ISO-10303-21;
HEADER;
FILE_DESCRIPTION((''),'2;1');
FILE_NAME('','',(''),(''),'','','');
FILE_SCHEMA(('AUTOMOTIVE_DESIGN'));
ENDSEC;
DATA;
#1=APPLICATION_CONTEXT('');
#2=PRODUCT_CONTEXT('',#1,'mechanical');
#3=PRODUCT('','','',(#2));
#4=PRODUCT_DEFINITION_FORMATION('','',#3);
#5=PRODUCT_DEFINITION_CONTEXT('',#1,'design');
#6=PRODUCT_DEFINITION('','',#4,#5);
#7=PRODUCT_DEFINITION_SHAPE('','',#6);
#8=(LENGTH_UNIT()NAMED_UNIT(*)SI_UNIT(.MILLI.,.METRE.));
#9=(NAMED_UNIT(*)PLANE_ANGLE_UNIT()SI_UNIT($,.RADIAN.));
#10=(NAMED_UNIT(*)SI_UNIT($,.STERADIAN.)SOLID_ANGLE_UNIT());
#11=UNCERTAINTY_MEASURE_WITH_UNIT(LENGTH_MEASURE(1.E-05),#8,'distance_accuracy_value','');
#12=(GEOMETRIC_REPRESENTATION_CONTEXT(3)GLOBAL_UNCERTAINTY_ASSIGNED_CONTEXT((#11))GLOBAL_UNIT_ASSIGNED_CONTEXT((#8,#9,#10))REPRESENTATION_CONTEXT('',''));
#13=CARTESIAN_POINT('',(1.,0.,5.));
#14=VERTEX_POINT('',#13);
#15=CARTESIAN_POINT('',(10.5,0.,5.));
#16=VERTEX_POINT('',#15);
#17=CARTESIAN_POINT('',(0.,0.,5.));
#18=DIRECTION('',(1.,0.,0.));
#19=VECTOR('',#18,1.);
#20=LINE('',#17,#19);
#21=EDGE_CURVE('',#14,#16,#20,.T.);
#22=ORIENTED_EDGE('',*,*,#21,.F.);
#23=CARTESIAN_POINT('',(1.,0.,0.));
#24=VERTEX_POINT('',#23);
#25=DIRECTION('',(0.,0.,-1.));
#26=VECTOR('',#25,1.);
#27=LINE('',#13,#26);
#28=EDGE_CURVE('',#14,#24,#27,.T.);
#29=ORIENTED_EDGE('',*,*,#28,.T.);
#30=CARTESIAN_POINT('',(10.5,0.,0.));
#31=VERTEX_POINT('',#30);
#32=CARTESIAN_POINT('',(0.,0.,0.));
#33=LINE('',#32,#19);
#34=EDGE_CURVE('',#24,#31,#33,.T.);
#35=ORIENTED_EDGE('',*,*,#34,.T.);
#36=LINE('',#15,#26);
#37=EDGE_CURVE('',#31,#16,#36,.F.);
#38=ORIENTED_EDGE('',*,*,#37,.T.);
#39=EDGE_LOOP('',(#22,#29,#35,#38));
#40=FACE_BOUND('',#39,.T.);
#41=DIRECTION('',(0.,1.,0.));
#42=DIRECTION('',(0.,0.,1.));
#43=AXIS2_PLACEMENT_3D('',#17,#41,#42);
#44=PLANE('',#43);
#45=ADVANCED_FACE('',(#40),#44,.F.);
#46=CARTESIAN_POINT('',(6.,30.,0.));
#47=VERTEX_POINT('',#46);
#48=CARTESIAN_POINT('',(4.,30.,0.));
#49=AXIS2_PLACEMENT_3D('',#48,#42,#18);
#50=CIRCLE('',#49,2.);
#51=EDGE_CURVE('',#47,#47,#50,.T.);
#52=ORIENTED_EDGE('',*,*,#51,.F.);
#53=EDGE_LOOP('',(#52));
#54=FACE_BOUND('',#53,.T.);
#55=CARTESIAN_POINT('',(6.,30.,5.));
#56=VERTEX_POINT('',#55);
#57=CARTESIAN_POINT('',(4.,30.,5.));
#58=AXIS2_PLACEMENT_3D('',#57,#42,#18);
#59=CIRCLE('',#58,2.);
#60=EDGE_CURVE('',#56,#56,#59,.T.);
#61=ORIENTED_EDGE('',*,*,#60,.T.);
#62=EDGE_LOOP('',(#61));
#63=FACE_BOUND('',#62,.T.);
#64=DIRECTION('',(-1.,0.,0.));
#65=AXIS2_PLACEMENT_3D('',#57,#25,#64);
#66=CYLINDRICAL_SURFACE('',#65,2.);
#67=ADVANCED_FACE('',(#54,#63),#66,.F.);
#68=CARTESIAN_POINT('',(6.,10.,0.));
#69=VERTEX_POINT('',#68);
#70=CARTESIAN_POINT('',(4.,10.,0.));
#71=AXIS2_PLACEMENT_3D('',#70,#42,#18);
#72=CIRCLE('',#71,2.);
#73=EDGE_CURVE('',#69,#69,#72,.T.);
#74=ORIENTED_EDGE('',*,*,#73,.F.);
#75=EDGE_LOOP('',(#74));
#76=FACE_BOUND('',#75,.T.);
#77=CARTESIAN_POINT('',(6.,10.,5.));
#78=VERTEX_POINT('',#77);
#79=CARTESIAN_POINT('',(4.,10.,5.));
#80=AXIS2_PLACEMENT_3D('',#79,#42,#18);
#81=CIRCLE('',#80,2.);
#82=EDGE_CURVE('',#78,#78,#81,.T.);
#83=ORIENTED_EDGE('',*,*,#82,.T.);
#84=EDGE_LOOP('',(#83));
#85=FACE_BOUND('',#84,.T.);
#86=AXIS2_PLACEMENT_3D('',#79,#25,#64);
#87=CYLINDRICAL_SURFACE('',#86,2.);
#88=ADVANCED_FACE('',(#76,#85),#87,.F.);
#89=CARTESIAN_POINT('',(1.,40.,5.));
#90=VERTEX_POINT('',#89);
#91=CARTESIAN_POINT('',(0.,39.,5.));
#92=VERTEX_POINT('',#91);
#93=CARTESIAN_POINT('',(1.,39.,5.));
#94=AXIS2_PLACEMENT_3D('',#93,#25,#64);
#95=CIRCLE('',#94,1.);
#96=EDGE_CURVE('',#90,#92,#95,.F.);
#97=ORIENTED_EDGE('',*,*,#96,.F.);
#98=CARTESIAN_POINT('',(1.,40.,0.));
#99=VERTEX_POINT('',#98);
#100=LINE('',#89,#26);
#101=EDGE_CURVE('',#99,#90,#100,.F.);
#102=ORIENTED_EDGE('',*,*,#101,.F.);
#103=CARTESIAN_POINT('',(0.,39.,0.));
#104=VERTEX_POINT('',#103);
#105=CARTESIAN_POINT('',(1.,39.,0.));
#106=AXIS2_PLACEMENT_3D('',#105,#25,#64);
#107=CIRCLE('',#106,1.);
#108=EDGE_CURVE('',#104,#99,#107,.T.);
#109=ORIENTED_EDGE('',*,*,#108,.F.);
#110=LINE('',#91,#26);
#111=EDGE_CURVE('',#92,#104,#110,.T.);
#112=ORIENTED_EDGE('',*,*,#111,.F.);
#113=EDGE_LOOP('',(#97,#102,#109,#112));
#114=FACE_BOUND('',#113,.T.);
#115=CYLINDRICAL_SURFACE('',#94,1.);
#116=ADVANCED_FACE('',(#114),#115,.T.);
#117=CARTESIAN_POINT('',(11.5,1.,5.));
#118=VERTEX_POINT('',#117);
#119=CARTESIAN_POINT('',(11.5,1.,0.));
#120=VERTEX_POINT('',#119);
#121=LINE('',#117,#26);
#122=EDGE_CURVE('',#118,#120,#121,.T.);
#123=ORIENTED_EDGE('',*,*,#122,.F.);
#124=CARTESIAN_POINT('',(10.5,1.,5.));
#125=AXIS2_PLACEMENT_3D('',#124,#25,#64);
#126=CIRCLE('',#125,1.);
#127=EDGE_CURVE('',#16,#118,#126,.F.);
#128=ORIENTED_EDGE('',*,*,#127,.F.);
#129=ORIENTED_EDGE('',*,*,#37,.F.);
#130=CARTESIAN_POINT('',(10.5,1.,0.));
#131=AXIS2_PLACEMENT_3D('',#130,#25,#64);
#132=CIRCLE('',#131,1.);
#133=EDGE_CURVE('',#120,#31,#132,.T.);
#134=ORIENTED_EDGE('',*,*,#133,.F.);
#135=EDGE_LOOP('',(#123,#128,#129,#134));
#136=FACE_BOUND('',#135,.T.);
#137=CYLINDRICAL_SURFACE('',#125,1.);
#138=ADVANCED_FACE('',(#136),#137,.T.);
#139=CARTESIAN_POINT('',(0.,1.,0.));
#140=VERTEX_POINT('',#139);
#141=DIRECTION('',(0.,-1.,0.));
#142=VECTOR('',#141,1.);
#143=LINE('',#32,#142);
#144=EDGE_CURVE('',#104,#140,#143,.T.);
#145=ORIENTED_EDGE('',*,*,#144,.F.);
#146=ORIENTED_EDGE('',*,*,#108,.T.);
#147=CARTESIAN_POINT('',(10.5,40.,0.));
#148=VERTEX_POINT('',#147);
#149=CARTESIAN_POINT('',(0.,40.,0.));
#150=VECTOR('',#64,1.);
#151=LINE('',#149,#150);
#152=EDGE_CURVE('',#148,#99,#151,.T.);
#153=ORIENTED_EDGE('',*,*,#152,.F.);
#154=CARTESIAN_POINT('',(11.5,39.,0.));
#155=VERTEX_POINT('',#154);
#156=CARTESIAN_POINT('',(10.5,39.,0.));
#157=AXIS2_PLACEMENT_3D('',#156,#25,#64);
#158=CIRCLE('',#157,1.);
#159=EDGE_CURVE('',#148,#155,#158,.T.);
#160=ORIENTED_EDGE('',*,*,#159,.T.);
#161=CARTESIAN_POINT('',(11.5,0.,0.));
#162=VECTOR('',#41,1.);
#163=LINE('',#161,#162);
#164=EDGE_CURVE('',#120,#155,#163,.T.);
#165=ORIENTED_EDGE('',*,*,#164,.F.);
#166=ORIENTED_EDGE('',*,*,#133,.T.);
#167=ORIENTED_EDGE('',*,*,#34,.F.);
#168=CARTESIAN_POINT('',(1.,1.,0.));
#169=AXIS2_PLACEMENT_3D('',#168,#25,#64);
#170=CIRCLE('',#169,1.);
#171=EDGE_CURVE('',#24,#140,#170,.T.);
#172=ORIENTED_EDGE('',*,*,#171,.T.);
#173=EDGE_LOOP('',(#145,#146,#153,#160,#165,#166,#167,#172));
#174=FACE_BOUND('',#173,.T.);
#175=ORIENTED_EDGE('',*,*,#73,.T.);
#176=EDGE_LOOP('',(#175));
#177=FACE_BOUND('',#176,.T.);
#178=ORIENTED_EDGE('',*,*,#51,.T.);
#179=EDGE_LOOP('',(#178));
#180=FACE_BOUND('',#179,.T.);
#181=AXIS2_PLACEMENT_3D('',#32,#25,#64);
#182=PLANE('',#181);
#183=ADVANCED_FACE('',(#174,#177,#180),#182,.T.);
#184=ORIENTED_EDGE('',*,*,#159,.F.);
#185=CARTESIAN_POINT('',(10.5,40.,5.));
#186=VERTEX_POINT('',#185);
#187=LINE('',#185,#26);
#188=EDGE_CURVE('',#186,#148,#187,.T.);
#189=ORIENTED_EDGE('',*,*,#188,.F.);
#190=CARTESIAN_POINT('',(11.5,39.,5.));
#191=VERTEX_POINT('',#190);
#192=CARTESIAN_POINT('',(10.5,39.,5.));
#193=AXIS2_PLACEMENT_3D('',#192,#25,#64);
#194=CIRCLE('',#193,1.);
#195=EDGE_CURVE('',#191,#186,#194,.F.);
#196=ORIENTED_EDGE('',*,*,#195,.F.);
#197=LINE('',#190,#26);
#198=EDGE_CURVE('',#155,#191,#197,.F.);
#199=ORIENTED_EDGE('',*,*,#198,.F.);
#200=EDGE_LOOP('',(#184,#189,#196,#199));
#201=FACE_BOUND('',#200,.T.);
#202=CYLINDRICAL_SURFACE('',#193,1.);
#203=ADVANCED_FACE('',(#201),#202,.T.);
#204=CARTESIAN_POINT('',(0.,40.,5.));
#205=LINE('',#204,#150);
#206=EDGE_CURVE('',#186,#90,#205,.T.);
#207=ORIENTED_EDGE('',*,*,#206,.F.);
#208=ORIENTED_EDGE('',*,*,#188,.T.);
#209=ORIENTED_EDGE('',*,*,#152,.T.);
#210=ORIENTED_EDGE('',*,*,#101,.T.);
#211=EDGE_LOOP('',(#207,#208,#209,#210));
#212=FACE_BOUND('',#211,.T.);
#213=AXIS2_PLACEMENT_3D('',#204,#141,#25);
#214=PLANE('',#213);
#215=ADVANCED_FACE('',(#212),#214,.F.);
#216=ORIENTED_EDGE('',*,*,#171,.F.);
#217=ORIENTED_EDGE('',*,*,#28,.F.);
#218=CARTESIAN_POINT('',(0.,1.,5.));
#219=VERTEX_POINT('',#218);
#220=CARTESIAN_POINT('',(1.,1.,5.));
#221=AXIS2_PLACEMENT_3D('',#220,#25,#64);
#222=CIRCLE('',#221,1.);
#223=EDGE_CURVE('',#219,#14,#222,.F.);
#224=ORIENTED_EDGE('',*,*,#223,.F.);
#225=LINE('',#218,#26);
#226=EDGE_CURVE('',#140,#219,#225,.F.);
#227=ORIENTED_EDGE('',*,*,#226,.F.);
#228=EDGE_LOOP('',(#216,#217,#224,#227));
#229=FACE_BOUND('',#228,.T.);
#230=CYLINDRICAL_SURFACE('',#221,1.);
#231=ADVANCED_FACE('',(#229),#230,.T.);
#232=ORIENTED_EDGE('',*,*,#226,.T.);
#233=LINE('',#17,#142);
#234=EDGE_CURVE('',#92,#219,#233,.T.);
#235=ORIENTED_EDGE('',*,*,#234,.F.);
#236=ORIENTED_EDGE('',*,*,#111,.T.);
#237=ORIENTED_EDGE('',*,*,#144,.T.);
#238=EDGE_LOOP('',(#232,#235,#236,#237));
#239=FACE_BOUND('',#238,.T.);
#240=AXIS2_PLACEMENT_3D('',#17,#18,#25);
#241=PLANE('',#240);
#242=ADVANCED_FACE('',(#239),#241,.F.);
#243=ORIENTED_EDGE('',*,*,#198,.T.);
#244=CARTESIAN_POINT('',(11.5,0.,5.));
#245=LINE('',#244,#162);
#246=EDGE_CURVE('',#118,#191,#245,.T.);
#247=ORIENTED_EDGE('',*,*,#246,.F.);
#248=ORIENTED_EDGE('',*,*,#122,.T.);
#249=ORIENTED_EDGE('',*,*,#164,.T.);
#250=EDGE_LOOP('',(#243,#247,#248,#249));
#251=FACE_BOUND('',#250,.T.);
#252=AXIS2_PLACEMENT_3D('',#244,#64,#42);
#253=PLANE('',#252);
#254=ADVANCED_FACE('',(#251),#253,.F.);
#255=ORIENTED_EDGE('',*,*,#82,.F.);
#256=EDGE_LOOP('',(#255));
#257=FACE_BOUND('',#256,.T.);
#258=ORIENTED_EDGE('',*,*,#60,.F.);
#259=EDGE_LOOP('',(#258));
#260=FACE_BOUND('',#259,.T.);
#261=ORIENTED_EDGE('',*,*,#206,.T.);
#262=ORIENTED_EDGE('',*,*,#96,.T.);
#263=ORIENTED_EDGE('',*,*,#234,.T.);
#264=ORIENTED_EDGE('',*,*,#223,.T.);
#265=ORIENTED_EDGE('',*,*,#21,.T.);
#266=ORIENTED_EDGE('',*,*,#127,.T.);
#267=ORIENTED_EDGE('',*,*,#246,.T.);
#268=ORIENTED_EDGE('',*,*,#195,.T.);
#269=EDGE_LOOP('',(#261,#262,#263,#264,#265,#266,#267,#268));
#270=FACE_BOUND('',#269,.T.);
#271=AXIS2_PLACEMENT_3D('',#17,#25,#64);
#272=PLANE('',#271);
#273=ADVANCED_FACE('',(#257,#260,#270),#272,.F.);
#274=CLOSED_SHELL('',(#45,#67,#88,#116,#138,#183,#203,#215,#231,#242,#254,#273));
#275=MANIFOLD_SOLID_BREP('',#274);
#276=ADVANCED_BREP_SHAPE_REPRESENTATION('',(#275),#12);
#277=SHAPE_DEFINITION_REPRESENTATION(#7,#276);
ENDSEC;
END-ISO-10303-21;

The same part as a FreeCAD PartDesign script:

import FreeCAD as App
import Part
import Sketcher
Q = App.Units.Quantity


def edges_at(feature, points):
    """Names of the edges that pass closest to the given points."""
    edges = feature.Shape.Edges
    near = lambda p: min(range(len(edges)), key=lambda i: edges[i].distToShape(Part.Vertex(*p))[0])
    return sorted({f"Edge{near(p) + 1}" for p in points})


def add_polygon(sketch, points):
    """Adds a closed chain of lines whose ends are joined by coincident constraints."""
    first, n = sketch.GeometryCount, len(points)
    for a, b in zip(points, points[1:] + points[:1]):
        sketch.addGeometry(Part.LineSegment(App.Vector(*a, 0), App.Vector(*b, 0)), False)
    for i in range(n):
        sketch.addConstraint(Sketcher.Constraint("Coincident", first + i, 2, first + (i + 1) % n, 1))

doc = App.newDocument("Part")
body = doc.addObject("PartDesign::Body", "Body")

sketch1 = doc.addObject("Sketcher::SketchObject", "Sketch")
body.addObject(sketch1)
sketch1.AttachmentSupport = (doc.XY_Plane, [""])
sketch1.MapMode = "FlatFace"
add_polygon(sketch1, [(0, 40), (0, 0), (11.5, 0), (11.5, 40)])
sketch1.addGeometry(Part.Circle(App.Vector(4, 10, 0), App.Vector(0, 0, 1), 2), False)
sketch1.addGeometry(Part.Circle(App.Vector(4, 30, 0), App.Vector(0, 0, 1), 2), False)
sketch1.addConstraint([
    Sketcher.Constraint("Vertical", 0),
    Sketcher.Constraint("Horizontal", 1),
    Sketcher.Constraint("Vertical", 2),
    Sketcher.Constraint("Horizontal", 3),
    Sketcher.Constraint("Coincident", 0, 2, -1, 1),
    Sketcher.Constraint("Equal", 4, 5),
    Sketcher.Constraint("Vertical", 4, 3, 5, 3),
    Sketcher.Constraint("Diameter", 4, Q("4 mm")),
    Sketcher.Constraint("DistanceY", 0, 2, 0, 1, Q("40 mm")),
    Sketcher.Constraint("DistanceX", 1, 1, 1, 2, Q("11.5 mm")),
    Sketcher.Constraint("DistanceX", -1, 1, 4, 3, Q("4 mm")),
    Sketcher.Constraint("DistanceY", -1, 1, 4, 3, Q("10 mm")),
    Sketcher.Constraint("DistanceY", -1, 1, 5, 3, Q("30 mm")),
])
pad1 = doc.addObject("PartDesign::Pad", "Pad")
body.addObject(pad1)
pad1.Profile = sketch1
pad1.Length = 5
doc.recompute()

fillet = doc.addObject("PartDesign::Fillet", "Fillet")
body.addObject(fillet)
fillet.Base = (pad1, edges_at(pad1, [
    (0, 40, 2.5),
    (11.5, 40, 2.5),
    (11.5, 0, 2.5),
    (0, 0, 2.5),
]))
fillet.Radius = 1

doc.recompute()
